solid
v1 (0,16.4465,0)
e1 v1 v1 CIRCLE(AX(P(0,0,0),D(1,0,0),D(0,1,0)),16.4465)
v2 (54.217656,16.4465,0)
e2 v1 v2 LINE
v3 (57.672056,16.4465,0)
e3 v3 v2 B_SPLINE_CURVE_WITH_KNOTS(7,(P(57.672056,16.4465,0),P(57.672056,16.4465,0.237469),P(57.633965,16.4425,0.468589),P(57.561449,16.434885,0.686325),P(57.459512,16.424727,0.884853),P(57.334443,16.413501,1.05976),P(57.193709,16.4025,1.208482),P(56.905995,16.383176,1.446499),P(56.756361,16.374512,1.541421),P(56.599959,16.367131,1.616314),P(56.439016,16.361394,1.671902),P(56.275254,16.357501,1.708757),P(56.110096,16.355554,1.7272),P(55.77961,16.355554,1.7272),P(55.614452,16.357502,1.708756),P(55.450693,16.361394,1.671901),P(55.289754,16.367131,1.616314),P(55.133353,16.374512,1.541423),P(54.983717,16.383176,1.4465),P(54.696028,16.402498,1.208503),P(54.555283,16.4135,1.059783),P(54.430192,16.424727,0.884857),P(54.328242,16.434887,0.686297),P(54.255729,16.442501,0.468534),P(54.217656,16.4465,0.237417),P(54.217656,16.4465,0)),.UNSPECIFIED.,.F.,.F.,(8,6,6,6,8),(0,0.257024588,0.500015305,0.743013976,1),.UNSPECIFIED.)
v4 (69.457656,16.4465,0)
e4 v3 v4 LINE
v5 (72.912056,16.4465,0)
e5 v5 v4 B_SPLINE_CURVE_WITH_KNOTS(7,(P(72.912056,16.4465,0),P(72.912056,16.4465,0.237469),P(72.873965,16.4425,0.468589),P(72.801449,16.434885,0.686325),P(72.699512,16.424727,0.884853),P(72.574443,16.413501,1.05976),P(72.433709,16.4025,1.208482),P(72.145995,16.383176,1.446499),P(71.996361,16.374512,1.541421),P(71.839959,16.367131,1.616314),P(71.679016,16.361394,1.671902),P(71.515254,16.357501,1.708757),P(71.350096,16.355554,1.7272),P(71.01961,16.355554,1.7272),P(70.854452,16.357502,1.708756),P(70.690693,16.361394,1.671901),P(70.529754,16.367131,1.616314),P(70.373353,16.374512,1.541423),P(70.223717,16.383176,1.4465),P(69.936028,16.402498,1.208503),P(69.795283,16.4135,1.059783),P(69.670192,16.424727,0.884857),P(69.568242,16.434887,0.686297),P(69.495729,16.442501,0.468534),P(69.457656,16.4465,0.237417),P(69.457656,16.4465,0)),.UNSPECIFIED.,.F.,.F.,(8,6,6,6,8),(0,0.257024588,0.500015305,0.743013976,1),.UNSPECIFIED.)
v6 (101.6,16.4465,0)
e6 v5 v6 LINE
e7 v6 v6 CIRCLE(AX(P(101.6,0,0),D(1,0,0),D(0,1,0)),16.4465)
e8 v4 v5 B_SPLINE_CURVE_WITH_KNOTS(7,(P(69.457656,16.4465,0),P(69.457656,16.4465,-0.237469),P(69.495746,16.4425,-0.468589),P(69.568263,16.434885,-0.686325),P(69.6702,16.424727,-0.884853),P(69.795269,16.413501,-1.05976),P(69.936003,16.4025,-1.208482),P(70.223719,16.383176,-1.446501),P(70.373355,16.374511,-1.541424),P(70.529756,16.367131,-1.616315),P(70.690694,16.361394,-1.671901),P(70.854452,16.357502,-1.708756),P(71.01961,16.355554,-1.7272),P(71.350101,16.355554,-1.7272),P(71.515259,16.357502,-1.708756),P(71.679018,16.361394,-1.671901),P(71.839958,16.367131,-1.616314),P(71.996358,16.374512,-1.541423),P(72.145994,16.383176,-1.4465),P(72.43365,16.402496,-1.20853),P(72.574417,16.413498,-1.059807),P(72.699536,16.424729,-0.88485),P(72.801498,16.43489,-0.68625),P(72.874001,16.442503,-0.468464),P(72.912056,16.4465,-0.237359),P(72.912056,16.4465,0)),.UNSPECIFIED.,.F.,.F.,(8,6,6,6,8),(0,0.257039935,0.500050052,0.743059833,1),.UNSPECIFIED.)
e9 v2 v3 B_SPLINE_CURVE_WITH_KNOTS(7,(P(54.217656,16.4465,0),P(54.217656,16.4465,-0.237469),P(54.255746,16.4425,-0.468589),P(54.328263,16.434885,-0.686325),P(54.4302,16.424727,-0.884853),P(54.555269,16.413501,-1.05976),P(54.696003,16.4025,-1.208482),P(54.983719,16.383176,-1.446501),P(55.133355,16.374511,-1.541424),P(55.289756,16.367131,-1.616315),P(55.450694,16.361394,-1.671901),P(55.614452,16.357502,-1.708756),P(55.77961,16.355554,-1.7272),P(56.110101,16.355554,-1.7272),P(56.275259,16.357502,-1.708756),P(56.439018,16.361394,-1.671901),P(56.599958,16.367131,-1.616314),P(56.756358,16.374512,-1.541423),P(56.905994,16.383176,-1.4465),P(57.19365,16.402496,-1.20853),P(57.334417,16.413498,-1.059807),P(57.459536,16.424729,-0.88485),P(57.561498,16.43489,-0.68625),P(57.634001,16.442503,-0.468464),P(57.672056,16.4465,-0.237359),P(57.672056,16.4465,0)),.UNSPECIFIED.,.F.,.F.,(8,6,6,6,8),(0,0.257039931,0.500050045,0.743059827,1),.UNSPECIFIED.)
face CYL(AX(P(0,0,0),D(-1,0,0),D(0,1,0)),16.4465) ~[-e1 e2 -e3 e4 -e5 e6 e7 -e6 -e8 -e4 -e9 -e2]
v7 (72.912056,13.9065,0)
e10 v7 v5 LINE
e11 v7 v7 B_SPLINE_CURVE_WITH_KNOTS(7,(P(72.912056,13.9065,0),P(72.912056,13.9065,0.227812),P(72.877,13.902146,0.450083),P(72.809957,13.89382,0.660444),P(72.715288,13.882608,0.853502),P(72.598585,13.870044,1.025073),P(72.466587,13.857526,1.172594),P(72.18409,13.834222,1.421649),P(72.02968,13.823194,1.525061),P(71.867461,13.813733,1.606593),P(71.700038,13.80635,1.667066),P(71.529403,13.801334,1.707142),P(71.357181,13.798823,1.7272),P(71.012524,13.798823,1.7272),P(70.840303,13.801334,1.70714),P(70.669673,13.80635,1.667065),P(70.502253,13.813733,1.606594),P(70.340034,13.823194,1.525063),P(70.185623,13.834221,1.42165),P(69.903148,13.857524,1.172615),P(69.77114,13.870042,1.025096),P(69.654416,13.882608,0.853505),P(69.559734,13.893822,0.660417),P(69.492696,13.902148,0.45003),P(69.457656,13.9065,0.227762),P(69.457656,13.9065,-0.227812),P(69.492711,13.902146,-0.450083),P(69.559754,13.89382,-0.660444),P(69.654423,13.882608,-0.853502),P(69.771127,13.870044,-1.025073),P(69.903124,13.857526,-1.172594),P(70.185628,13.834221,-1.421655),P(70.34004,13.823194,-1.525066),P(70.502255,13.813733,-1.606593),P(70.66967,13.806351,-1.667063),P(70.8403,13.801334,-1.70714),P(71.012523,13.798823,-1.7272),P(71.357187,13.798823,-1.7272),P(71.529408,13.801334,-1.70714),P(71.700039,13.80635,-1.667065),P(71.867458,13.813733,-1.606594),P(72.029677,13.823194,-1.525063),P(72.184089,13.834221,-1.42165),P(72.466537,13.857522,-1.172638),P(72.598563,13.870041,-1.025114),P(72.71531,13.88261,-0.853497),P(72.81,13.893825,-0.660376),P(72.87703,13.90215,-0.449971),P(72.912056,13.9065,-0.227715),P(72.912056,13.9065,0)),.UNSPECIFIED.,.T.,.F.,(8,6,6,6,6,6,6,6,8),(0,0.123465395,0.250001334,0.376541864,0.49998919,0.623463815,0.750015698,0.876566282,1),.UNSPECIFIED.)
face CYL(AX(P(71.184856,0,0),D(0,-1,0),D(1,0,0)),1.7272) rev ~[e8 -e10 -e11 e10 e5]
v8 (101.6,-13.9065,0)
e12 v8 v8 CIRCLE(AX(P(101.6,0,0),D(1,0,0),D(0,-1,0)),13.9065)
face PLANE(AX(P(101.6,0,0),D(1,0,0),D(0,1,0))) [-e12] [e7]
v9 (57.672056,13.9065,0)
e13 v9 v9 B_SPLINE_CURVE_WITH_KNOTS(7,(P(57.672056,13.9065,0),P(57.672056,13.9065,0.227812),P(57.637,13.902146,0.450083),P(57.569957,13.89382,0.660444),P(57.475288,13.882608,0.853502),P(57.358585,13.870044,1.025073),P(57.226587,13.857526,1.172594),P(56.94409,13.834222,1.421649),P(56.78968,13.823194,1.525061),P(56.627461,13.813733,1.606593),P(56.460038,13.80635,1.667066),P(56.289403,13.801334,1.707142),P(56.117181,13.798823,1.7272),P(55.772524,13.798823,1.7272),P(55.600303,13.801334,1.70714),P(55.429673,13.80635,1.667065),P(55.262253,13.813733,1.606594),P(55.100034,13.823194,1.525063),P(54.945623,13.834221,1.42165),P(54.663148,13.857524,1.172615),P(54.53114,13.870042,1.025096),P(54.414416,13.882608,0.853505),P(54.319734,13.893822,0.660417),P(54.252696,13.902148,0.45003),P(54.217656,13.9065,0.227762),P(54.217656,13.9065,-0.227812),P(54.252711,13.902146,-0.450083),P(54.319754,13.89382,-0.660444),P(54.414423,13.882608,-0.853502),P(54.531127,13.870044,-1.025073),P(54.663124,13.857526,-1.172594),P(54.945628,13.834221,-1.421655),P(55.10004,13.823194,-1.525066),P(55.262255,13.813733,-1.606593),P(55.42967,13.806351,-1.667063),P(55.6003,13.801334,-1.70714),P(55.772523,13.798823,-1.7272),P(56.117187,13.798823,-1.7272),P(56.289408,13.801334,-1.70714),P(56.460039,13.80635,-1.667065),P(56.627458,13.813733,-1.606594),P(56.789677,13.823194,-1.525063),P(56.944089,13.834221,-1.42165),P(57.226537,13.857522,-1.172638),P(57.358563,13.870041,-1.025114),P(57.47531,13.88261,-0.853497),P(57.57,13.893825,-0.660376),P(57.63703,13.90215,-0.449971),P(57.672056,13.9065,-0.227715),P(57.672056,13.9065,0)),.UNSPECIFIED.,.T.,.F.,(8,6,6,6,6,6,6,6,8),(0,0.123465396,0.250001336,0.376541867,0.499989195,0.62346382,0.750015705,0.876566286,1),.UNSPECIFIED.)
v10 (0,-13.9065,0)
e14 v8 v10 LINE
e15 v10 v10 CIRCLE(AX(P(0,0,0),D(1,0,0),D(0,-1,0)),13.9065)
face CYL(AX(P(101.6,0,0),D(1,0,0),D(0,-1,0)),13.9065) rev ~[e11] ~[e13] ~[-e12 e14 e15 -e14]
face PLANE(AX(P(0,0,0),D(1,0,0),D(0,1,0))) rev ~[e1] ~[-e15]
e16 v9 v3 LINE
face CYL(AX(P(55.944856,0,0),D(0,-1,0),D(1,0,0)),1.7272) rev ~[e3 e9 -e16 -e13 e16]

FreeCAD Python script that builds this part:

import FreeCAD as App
import Part
import Sketcher

V = App.Vector
Q = App.Units.Quantity

doc = App.newDocument("Part")
params = doc.addObject("Spreadsheet::Sheet", "Params")
for row, (alias, value) in enumerate([
    ("sketch1_diameter", "1.295 in"),
    ("pad1_length", "4 in"),
    ("sketch2_diameter", "1.095 in"),
    ("sketch3_diameter", "0.136 in"),
    ("sketch4_diameter", "0.136 in"),
], start=1):
    params.set(f"A{row}", alias)
    params.set(f"B{row}", "=" + value)
    params.setAlias(f"B{row}", alias)

body = doc.addObject("PartDesign::Body", "Body")

# Sketch on YZ plane
sketch1 = doc.addObject("Sketcher::SketchObject", "Sketch")
body.addObject(sketch1)
sketch1.AttachmentSupport = (doc.YZ_Plane, [""])
sketch1.MapMode = "FlatFace"
sketch1.addGeometry(Part.Circle(V(0, 0, 0), V(0, 0, 1), 16), False)
sketch1.addConstraint(Sketcher.Constraint("Coincident", 0, 3, -1, 1))
sketch1.addConstraint(Sketcher.Constraint("Diameter", 0, Q("1.295 in")))
sketch1.setExpression("Constraints[1]", "Params.sketch1_diameter")
pad1 = doc.addObject("PartDesign::Pad", "Pad")
body.addObject(pad1)
pad1.Profile = sketch1
pad1.setExpression("Length", "Params.pad1_length")

# Sketch on YZ plane
sketch2 = doc.addObject("Sketcher::SketchObject", "Sketch001")
body.addObject(sketch2)
sketch2.AttachmentSupport = (doc.YZ_Plane, [""])
sketch2.MapMode = "FlatFace"
sketch2.AttachmentOffset = App.Placement(V(0, 0, 4 * 25.4), App.Rotation())
sketch2.addGeometry(Part.Circle(V(0, 0, 0), V(0, 0, 1), 14), False)
sketch2.addConstraint(Sketcher.Constraint("Coincident", 0, 3, -1, 1))
sketch2.addConstraint(Sketcher.Constraint("Diameter", 0, Q("1.095 in")))
sketch2.setExpression("Constraints[1]", "Params.sketch2_diameter")
pocket1 = doc.addObject("PartDesign::Pocket", "Pocket")
body.addObject(pocket1)
pocket1.Profile = sketch2
pocket1.Type = "ThroughAll"

# Sketch on XZ plane
sketch3 = doc.addObject("Sketcher::SketchObject", "Sketch002")
body.addObject(sketch3)
sketch3.AttachmentSupport = (doc.XZ_Plane, [""])
sketch3.MapMode = "FlatFace"
sketch3.addGeometry(Part.Circle(V(71.2, 0, 0), V(0, 0, 1), 1.7), False)
sketch3.addConstraint(Sketcher.Constraint("PointOnObject", 0, 3, -1))
sketch3.addConstraint(Sketcher.Constraint("Diameter", 0, Q("0.136 in")))
sketch3.addConstraint(Sketcher.Constraint("DistanceX", -1, 1, 0, 3, Q("71.184856 mm")))
sketch3.setExpression("Constraints[1]", "Params.sketch3_diameter")
pocket2 = doc.addObject("PartDesign::Pocket", "Pocket001")
body.addObject(pocket2)
pocket2.Profile = sketch3
pocket2.Type = "ThroughAll"

# Sketch on XZ plane
sketch4 = doc.addObject("Sketcher::SketchObject", "Sketch003")
body.addObject(sketch4)
sketch4.AttachmentSupport = (doc.XZ_Plane, [""])
sketch4.MapMode = "FlatFace"
sketch4.addGeometry(Part.Circle(V(55.9, 0, 0), V(0, 0, 1), 1.7), False)
sketch4.addConstraint(Sketcher.Constraint("PointOnObject", 0, 3, -1))
sketch4.addConstraint(Sketcher.Constraint("Diameter", 0, Q("0.136 in")))
sketch4.addConstraint(Sketcher.Constraint("DistanceX", -1, 1, 0, 3, Q("55.944856 mm")))
sketch4.setExpression("Constraints[1]", "Params.sketch4_diameter")
pocket3 = doc.addObject("PartDesign::Pocket", "Pocket002")
body.addObject(pocket3)
pocket3.Profile = sketch4
pocket3.Type = "ThroughAll"

doc.recompute()
